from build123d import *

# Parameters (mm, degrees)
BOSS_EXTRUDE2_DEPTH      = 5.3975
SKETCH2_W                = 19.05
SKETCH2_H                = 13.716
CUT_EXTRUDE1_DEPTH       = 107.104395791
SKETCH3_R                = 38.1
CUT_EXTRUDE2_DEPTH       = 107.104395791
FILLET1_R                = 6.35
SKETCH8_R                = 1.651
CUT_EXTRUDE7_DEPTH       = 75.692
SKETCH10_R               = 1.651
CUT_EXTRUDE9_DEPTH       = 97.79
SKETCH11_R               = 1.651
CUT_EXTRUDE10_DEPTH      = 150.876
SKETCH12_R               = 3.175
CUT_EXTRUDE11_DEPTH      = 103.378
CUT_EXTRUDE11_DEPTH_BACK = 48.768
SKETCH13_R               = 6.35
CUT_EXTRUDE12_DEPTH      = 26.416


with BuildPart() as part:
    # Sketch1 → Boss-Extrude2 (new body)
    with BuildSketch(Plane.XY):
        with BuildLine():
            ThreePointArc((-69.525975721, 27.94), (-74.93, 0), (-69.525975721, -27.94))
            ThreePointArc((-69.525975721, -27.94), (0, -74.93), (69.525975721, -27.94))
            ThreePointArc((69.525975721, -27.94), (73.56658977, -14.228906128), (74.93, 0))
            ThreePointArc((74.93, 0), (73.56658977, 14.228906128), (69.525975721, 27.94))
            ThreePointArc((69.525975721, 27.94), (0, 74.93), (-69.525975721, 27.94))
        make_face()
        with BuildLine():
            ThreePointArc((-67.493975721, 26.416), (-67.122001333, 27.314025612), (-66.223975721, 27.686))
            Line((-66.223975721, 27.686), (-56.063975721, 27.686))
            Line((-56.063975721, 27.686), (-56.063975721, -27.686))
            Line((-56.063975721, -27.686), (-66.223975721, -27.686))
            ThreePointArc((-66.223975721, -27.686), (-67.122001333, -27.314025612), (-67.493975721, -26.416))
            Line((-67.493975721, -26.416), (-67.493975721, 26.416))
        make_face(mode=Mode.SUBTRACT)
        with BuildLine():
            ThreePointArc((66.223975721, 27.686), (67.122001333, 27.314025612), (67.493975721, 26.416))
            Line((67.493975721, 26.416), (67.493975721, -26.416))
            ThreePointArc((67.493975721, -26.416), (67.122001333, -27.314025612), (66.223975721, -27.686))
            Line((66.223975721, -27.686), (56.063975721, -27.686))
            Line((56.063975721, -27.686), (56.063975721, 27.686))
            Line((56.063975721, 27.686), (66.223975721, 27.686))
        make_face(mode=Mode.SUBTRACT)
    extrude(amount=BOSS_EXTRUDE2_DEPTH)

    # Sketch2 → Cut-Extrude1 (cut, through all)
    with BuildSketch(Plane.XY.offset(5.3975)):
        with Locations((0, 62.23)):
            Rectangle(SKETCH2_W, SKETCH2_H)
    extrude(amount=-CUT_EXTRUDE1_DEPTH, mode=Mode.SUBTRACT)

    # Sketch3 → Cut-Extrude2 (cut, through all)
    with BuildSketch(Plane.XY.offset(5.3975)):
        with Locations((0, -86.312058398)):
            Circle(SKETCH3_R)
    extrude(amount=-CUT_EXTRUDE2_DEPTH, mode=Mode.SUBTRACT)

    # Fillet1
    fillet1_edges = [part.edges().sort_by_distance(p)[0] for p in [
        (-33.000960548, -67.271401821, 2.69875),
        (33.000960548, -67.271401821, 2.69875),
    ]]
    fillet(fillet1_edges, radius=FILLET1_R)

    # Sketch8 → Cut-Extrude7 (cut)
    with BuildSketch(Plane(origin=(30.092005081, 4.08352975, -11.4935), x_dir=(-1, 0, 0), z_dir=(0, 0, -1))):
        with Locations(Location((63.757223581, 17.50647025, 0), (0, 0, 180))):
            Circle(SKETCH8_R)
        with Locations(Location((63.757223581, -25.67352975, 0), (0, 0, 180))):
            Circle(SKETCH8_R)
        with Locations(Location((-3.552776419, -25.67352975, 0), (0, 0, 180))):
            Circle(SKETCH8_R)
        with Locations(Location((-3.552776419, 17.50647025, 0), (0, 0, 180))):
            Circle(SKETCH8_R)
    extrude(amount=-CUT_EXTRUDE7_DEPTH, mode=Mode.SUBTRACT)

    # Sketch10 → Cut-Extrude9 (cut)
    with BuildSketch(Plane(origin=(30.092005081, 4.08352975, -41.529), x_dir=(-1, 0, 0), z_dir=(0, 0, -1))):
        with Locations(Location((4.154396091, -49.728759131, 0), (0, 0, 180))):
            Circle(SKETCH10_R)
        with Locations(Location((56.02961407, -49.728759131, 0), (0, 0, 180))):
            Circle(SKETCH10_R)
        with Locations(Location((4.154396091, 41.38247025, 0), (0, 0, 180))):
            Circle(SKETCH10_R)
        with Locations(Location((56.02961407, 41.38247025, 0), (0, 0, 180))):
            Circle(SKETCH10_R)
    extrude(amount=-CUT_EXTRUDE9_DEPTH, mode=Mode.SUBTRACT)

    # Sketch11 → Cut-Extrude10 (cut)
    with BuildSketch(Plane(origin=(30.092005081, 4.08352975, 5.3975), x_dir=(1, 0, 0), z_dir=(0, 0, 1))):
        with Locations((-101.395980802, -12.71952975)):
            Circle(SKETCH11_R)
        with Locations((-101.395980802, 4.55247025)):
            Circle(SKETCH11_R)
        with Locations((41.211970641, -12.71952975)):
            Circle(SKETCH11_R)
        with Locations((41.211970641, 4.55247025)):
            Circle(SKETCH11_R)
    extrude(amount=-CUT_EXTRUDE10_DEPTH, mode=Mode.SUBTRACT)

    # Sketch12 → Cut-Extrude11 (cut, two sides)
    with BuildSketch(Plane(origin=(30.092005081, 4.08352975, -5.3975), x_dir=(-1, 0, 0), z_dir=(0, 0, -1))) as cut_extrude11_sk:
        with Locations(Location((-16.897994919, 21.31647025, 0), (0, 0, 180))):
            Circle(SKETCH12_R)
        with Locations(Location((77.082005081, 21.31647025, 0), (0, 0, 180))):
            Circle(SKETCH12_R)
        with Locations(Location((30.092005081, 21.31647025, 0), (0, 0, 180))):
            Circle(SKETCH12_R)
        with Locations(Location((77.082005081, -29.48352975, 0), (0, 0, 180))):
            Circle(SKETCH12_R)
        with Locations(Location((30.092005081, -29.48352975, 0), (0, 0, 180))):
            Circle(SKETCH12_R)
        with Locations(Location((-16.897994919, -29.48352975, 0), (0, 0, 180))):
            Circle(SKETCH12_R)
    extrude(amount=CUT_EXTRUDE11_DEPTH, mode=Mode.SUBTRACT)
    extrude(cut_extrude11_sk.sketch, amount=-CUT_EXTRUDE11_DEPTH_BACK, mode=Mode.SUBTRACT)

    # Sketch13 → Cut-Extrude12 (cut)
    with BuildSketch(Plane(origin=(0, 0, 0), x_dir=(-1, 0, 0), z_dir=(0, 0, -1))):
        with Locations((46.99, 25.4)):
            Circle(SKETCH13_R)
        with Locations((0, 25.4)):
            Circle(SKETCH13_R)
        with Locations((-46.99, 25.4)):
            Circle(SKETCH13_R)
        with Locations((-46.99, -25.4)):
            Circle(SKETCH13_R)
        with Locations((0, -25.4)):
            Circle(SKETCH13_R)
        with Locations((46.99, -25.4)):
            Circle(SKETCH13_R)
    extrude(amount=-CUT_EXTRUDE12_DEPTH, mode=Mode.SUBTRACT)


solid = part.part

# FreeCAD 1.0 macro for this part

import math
import FreeCAD as App
import Part
import Sketcher
Q = App.Units.Quantity


def edges_at(feature, points):
    """Names of the edges that pass closest to the given points."""
    edges = feature.Shape.Edges
    near = lambda p: min(range(len(edges)), key=lambda i: edges[i].distToShape(Part.Vertex(*p))[0])
    return sorted({f"Edge{near(p) + 1}" for p in points})


def add_polygon(sketch, points):
    """Adds a closed chain of lines whose ends are joined by coincident constraints."""
    first, n = sketch.GeometryCount, len(points)
    for a, b in zip(points, points[1:] + points[:1]):
        sketch.addGeometry(Part.LineSegment(App.Vector(*a, 0), App.Vector(*b, 0)), False)
    for i in range(n):
        sketch.addConstraint(Sketcher.Constraint("Coincident", first + i, 2, first + (i + 1) % n, 1))

doc = App.newDocument("Part")
body = doc.addObject("PartDesign::Body", "Body")

# Sketch on XY plane
sketch1 = doc.addObject("Sketcher::SketchObject", "Sketch")
body.addObject(sketch1)
sketch1.AttachmentSupport = (doc.XY_Plane, [""])
sketch1.MapMode = "FlatFace"
sketch1.addGeometry([
    Part.ArcOfCircle(Part.Circle(App.Vector(0, 0, 0), App.Vector(0, 0, 1), 74.9), math.radians(158), math.radians(202)),  # 0
    Part.ArcOfCircle(Part.Circle(App.Vector(0, 0, 0), App.Vector(0, 0, 1), 74.9), math.radians(-158), math.radians(-22)),  # 1
    Part.ArcOfCircle(Part.Circle(App.Vector(0, 0, 0), App.Vector(0, 0, 1), 74.9), math.radians(-22), math.radians(0)),  # 2
    Part.ArcOfCircle(Part.Circle(App.Vector(0, 0, 0), App.Vector(0, 0, 1), 74.9), math.radians(0), math.radians(22)),  # 3
    Part.ArcOfCircle(Part.Circle(App.Vector(0, 0, 0), App.Vector(0, 0, 1), 74.9), math.radians(22), math.radians(158)),  # 4
    Part.LineSegment(App.Vector(-67.5, -26.4, 0), App.Vector(-67.5, 26.4, 0)),  # 5
    Part.ArcOfCircle(Part.Circle(App.Vector(-66.2, 26.4, 0), App.Vector(0, 0, 1), 1.3), math.radians(90), math.radians(180)),  # 6
    Part.LineSegment(App.Vector(-66.2, 27.7, 0), App.Vector(-56.1, 27.7, 0)),  # 7
    Part.LineSegment(App.Vector(-56.1, 27.7, 0), App.Vector(-56.1, -27.7, 0)),  # 8
    Part.LineSegment(App.Vector(-56.1, -27.7, 0), App.Vector(-66.2, -27.7, 0)),  # 9
    Part.ArcOfCircle(Part.Circle(App.Vector(-66.2, -26.4, 0), App.Vector(0, 0, 1), 1.3), math.radians(180), math.radians(270)),  # 10
    Part.LineSegment(App.Vector(56.1, 27.7, 0), App.Vector(66.2, 27.7, 0)),  # 11
    Part.ArcOfCircle(Part.Circle(App.Vector(66.2, 26.4, 0), App.Vector(0, 0, 1), 1.3), math.radians(0), math.radians(90)),  # 12
    Part.LineSegment(App.Vector(67.5, 26.4, 0), App.Vector(67.5, -26.4, 0)),  # 13
    Part.ArcOfCircle(Part.Circle(App.Vector(66.2, -26.4, 0), App.Vector(0, 0, 1), 1.3), math.radians(-90), math.radians(0)),  # 14
    Part.LineSegment(App.Vector(66.2, -27.7, 0), App.Vector(56.1, -27.7, 0)),  # 15
    Part.LineSegment(App.Vector(56.1, -27.7, 0), App.Vector(56.1, 27.7, 0)),  # 16
], False)
sketch1.addConstraint([
    Sketcher.Constraint("Tangent", 0, 2, 1, 1),
    Sketcher.Constraint("Tangent", 1, 2, 2, 1),
    Sketcher.Constraint("Tangent", 2, 2, 3, 1),
    Sketcher.Constraint("Tangent", 3, 2, 4, 1),
    Sketcher.Constraint("Tangent", 4, 2, 0, 1),
    Sketcher.Constraint("Tangent", 5, 2, 6, 2),
    Sketcher.Constraint("Tangent", 6, 1, 7, 1),
    Sketcher.Constraint("Coincident", 7, 2, 8, 1),
    Sketcher.Constraint("Coincident", 8, 2, 9, 1),
    Sketcher.Constraint("Tangent", 9, 2, 10, 2),
    Sketcher.Constraint("Tangent", 10, 1, 5, 1),
    Sketcher.Constraint("Tangent", 11, 2, 12, 2),
    Sketcher.Constraint("Tangent", 12, 1, 13, 1),
    Sketcher.Constraint("Tangent", 13, 2, 14, 2),
    Sketcher.Constraint("Tangent", 14, 1, 15, 1),
    Sketcher.Constraint("Coincident", 15, 2, 16, 1),
    Sketcher.Constraint("Coincident", 16, 2, 11, 1),
    Sketcher.Constraint("Vertical", 5),
    Sketcher.Constraint("Horizontal", 7),
    Sketcher.Constraint("Vertical", 8),
    Sketcher.Constraint("Horizontal", 9),
    Sketcher.Constraint("Horizontal", 11),
    Sketcher.Constraint("Vertical", 13),
    Sketcher.Constraint("Horizontal", 15),
    Sketcher.Constraint("Vertical", 16),
    Sketcher.Constraint("Coincident", 0, 3, -1, 1),
    Sketcher.Constraint("Coincident", 2, 3, -1, 1),
    Sketcher.Constraint("Equal", 6, 10),
    Sketcher.Constraint("Equal", 10, 12),
    Sketcher.Constraint("Equal", 12, 14),
    Sketcher.Constraint("Symmetric", 10, 3, 12, 3, -1, 1),
    Sketcher.Constraint("Symmetric", 7, 2, 15, 2, -1, 1),
    Sketcher.Constraint("PointOnObject", 2, 2, -1),
    Sketcher.Constraint("Horizontal", 6, 3, 12, 3),
    Sketcher.Constraint("Horizontal", 0, 2, 1, 2),
    Sketcher.Constraint("Horizontal", 3, 2, 4, 2),
    Sketcher.Constraint("Vertical", 1, 2, 3, 2),
    Sketcher.Constraint("Radius", 0, Q("2.95 in")),
    Sketcher.Constraint("Radius", 6, Q("0.05 in")),
    Sketcher.Constraint("DistanceX", 7, 1, 7, 2, Q("0.4 in")),
    Sketcher.Constraint("DistanceY", 5, 1, 5, 2, Q("2.08 in")),
    Sketcher.Constraint("DistanceY", 0, 2, -1, 1, Q("1.1 in")),
    Sketcher.Constraint("DistanceX", 0, 2, 10, 3, Q("0.13 in")),
])
pad1 = doc.addObject("PartDesign::Pad", "Pad")
body.addObject(pad1)
pad1.Profile = sketch1
pad1.Length = Q("0.2125 in")

# Sketch on XY plane
sketch2 = doc.addObject("Sketcher::SketchObject", "Sketch001")
body.addObject(sketch2)
sketch2.AttachmentSupport = (doc.XY_Plane, [""])
sketch2.MapMode = "FlatFace"
sketch2.AttachmentOffset = App.Placement(App.Vector(0, 0, 0.2125 * 25.4), App.Rotation())
add_polygon(sketch2, [(-10, 69), (-10, 55), (10, 55), (10, 69)])  # lines 0-3
sketch2.addConstraint([
    Sketcher.Constraint("Vertical", 0),
    Sketcher.Constraint("Horizontal", 1),
    Sketcher.Constraint("Vertical", 2),
    Sketcher.Constraint("Horizontal", 3),
    Sketcher.Constraint("DistanceX", 1, 1, 1, 2, Q("0.75 in")),
    Sketcher.Constraint("DistanceY", 0, 2, 0, 1, Q("0.54 in")),
    Sketcher.Constraint("DistanceY", -1, 1, 0, 2, Q("2.18 in")),
    Sketcher.Constraint("DistanceX", 0, 2, -1, 1, Q("0.375 in")),
])
pocket1 = doc.addObject("PartDesign::Pocket", "Pocket")
body.addObject(pocket1)
pocket1.Profile = sketch2
pocket1.Type = "ThroughAll"

# Sketch on XY plane
sketch3 = doc.addObject("Sketcher::SketchObject", "Sketch002")
body.addObject(sketch3)
sketch3.AttachmentSupport = (doc.XY_Plane, [""])
sketch3.MapMode = "FlatFace"
sketch3.AttachmentOffset = App.Placement(App.Vector(0, 0, 0.2125 * 25.4), App.Rotation())
sketch3.addGeometry(Part.Circle(App.Vector(0, -86, 0), App.Vector(0, 0, 1), 38), False)
sketch3.addConstraint([
    Sketcher.Constraint("PointOnObject", 0, 3, -2),
    Sketcher.Constraint("Diameter", 0, Q("3 in")),
    Sketcher.Constraint("DistanceY", 0, 3, -1, 1, 86.312058),
])
pocket2 = doc.addObject("PartDesign::Pocket", "Pocket001")
body.addObject(pocket2)
pocket2.Profile = sketch3
pocket2.Type = "ThroughAll"
doc.recompute()

fillet = doc.addObject("PartDesign::Fillet", "Fillet")
body.addObject(fillet)
fillet.Base = (pocket2, edges_at(pocket2, [(-33.001, -67.271, 2.699), (33.001, -67.271, 2.699)]))
fillet.Radius = Q("0.25 in")

# Sketch on XY plane
sketch4 = doc.addObject("Sketcher::SketchObject", "Sketch003")
body.addObject(sketch4)
sketch4.AttachmentSupport = (doc.XY_Plane, [""])
sketch4.MapMode = "FlatFace"
sketch4.AttachmentOffset = App.Placement(App.Vector(0, 0, -0.4525 * 25.4), App.Rotation())
sketch4.addGeometry([
    Part.Circle(App.Vector(-33.7, 21.6, 0), App.Vector(0, 0, 1), 1.7),
    Part.Circle(App.Vector(-33.7, -21.6, 0), App.Vector(0, 0, 1), 1.7),
    Part.Circle(App.Vector(33.6, -21.6, 0), App.Vector(0, 0, 1), 1.7),
    Part.Circle(App.Vector(33.6, 21.6, 0), App.Vector(0, 0, 1), 1.7),
], False)
sketch4.addConstraint([
    Sketcher.Constraint("Equal", 0, 1),
    Sketcher.Constraint("Equal", 1, 2),
    Sketcher.Constraint("Equal", 2, 3),
    Sketcher.Constraint("Symmetric", 0, 3, 1, 3, -1),
    Sketcher.Constraint("Symmetric", 2, 3, 3, 3, -1),
    Sketcher.Constraint("Horizontal", 1, 3, 2, 3),
    Sketcher.Constraint("Diameter", 0, Q("0.13 in")),
    Sketcher.Constraint("DistanceY", 1, 3, 0, 3, Q("1.7 in")),
    Sketcher.Constraint("DistanceX", 1, 3, 2, 3, Q("2.65 in")),
    Sketcher.Constraint("DistanceX", 0, 3, -1, 1, 33.665219),
])
pocket3 = doc.addObject("PartDesign::Pocket", "Pocket002")
body.addObject(pocket3)
pocket3.Profile = sketch4
pocket3.Length = Q("2.98 in")
pocket3.Reversed = True

# Sketch on XY plane
sketch5 = doc.addObject("Sketcher::SketchObject", "Sketch004")
body.addObject(sketch5)
sketch5.AttachmentSupport = (doc.XY_Plane, [""])
sketch5.MapMode = "FlatFace"
sketch5.AttachmentOffset = App.Placement(App.Vector(0, 0, -1.635 * 25.4), App.Rotation())
sketch5.addGeometry([
    Part.Circle(App.Vector(25.9, -45.6, 0), App.Vector(0, 0, 1), 1.7),
    Part.Circle(App.Vector(-25.9, -45.6, 0), App.Vector(0, 0, 1), 1.7),
    Part.Circle(App.Vector(25.9, 45.5, 0), App.Vector(0, 0, 1), 1.7),
    Part.Circle(App.Vector(-25.9, 45.5, 0), App.Vector(0, 0, 1), 1.7),
], False)
sketch5.addConstraint([
    Sketcher.Constraint("Equal", 0, 1),
    Sketcher.Constraint("Equal", 1, 2),
    Sketcher.Constraint("Equal", 2, 3),
    Sketcher.Constraint("Symmetric", 0, 3, 1, 3, -2),
    Sketcher.Constraint("Symmetric", 2, 3, 3, 3, -2),
    Sketcher.Constraint("Vertical", 0, 3, 2, 3),
    Sketcher.Constraint("Diameter", 0, Q("0.13 in")),
    Sketcher.Constraint("DistanceY", -1, 1, 2, 3, Q("1.79 in")),
    Sketcher.Constraint("DistanceX", -1, 1, 0, 3, 25.937609),
    Sketcher.Constraint("DistanceY", 0, 3, -1, 1, 45.645229),
])
pocket4 = doc.addObject("PartDesign::Pocket", "Pocket003")
body.addObject(pocket4)
pocket4.Profile = sketch5
pocket4.Length = Q("3.85 in")
pocket4.Reversed = True

# Sketch on XY plane
sketch6 = doc.addObject("Sketcher::SketchObject", "Sketch005")
body.addObject(sketch6)
sketch6.AttachmentSupport = (doc.XY_Plane, [""])
sketch6.MapMode = "FlatFace"
sketch6.AttachmentOffset = App.Placement(App.Vector(0, 0, 0.2125 * 25.4), App.Rotation())
sketch6.addGeometry([
    Part.Circle(App.Vector(-71.3, -8.6, 0), App.Vector(0, 0, 1), 1.7),
    Part.Circle(App.Vector(-71.3, 8.6, 0), App.Vector(0, 0, 1), 1.7),
    Part.Circle(App.Vector(71.3, -8.6, 0), App.Vector(0, 0, 1), 1.7),
    Part.Circle(App.Vector(71.3, 8.6, 0), App.Vector(0, 0, 1), 1.7),
], False)
sketch6.addConstraint([
    Sketcher.Constraint("Equal", 0, 1),
    Sketcher.Constraint("Equal", 1, 2),
    Sketcher.Constraint("Equal", 2, 3),
    Sketcher.Constraint("Symmetric", 1, 3, 2, 3, -1, 1),
    Sketcher.Constraint("Symmetric", 0, 3, 3, 3, -1, 1),
    Sketcher.Constraint("Symmetric", 0, 3, 2, 3, -2),
    Sketcher.Constraint("Diameter", 0, Q("0.13 in")),
    Sketcher.Constraint("DistanceY", 0, 3, -1, 1, Q("0.34 in")),
    Sketcher.Constraint("DistanceX", 0, 3, 2, 3, 142.607951),
])
pocket5 = doc.addObject("PartDesign::Pocket", "Pocket004")
body.addObject(pocket5)
pocket5.Profile = sketch6
pocket5.Length = Q("5.94 in")

# Sketch on XY plane
sketch7 = doc.addObject("Sketcher::SketchObject", "Sketch006")
body.addObject(sketch7)
sketch7.AttachmentSupport = (doc.XY_Plane, [""])
sketch7.MapMode = "FlatFace"
sketch7.AttachmentOffset = App.Placement(App.Vector(0, 0, -0.2125 * 25.4), App.Rotation())
sketch7.addGeometry([
    Part.Circle(App.Vector(47, 25.4, 0), App.Vector(0, 0, 1), 3.2),  # 0
    Part.Circle(App.Vector(-47, 25.4, 0), App.Vector(0, 0, 1), 3.2),  # 1
    Part.Circle(App.Vector(0, 25.4, 0), App.Vector(0, 0, 1), 3.2),  # 2
    Part.Circle(App.Vector(-47, -25.4, 0), App.Vector(0, 0, 1), 3.2),  # 3
    Part.Circle(App.Vector(0, -25.4, 0), App.Vector(0, 0, 1), 3.2),  # 4
    Part.Circle(App.Vector(47, -25.4, 0), App.Vector(0, 0, 1), 3.2),  # 5
], False)
sketch7.addConstraint([
    Sketcher.Constraint("Equal", 0, 1),
    Sketcher.Constraint("Equal", 1, 2),
    Sketcher.Constraint("Equal", 2, 3),
    Sketcher.Constraint("Equal", 3, 4),
    Sketcher.Constraint("Equal", 4, 5),
    Sketcher.Constraint("Symmetric", 0, 3, 3, 3, -1, 1),
    Sketcher.Constraint("Symmetric", 2, 3, 4, 3, -1, 1),
    Sketcher.Constraint("Symmetric", 1, 3, 5, 3, -1, 1),
    Sketcher.Constraint("Symmetric", 0, 3, 1, 3, -2),
    Sketcher.Constraint("PointOnObject", 2, 3, -2),
    Sketcher.Constraint("Horizontal", 1, 3, 2, 3),
    Sketcher.Constraint("Diameter", 0, Q("0.25 in")),
    Sketcher.Constraint("DistanceY", -1, 1, 0, 3, Q("1 in")),
    Sketcher.Constraint("DistanceX", 1, 3, 0, 3, Q("3.7 in")),
])
pocket6 = doc.addObject("PartDesign::Pocket", "Pocket005")
body.addObject(pocket6)
pocket6.Profile = sketch7
pocket6.Type = "ThroughAll"
pocket6.Midplane = True

# Sketch on XY plane
sketch8 = doc.addObject("Sketcher::SketchObject", "Sketch007")
body.addObject(sketch8)
sketch8.AttachmentSupport = (doc.XY_Plane, [""])
sketch8.MapMode = "FlatFace"
sketch8.addGeometry([
    Part.Circle(App.Vector(-47, 25, 0), App.Vector(0, 0, 1), 6),  # 0
    Part.Circle(App.Vector(0, 25, 0), App.Vector(0, 0, 1), 6),  # 1
    Part.Circle(App.Vector(47, 25, 0), App.Vector(0, 0, 1), 6),  # 2
    Part.Circle(App.Vector(47, -25, 0), App.Vector(0, 0, 1), 6),  # 3
    Part.Circle(App.Vector(0, -25, 0), App.Vector(0, 0, 1), 6),  # 4
    Part.Circle(App.Vector(-47, -25, 0), App.Vector(0, 0, 1), 6),  # 5
], False)
sketch8.addConstraint([
    Sketcher.Constraint("Equal", 0, 1),
    Sketcher.Constraint("Equal", 1, 2),
    Sketcher.Constraint("Equal", 2, 3),
    Sketcher.Constraint("Equal", 3, 4),
    Sketcher.Constraint("Equal", 4, 5),
    Sketcher.Constraint("Symmetric", 0, 3, 3, 3, -1, 1),
    Sketcher.Constraint("Symmetric", 1, 3, 4, 3, -1, 1),
    Sketcher.Constraint("Symmetric", 2, 3, 5, 3, -1, 1),
    Sketcher.Constraint("Symmetric", 0, 3, 2, 3, -2),
    Sketcher.Constraint("PointOnObject", 1, 3, -2),
    Sketcher.Constraint("Horizontal", 0, 3, 1, 3),
    Sketcher.Constraint("Diameter", 0, Q("0.5 in")),
    Sketcher.Constraint("DistanceY", -1, 1, 0, 3, Q("1 in")),
    Sketcher.Constraint("DistanceX", 0, 3, 2, 3, Q("3.7 in")),
])
pocket7 = doc.addObject("PartDesign::Pocket", "Pocket006")
body.addObject(pocket7)
pocket7.Profile = sketch8
pocket7.Length = Q("1.04 in")
pocket7.Reversed = True

doc.recompute()
